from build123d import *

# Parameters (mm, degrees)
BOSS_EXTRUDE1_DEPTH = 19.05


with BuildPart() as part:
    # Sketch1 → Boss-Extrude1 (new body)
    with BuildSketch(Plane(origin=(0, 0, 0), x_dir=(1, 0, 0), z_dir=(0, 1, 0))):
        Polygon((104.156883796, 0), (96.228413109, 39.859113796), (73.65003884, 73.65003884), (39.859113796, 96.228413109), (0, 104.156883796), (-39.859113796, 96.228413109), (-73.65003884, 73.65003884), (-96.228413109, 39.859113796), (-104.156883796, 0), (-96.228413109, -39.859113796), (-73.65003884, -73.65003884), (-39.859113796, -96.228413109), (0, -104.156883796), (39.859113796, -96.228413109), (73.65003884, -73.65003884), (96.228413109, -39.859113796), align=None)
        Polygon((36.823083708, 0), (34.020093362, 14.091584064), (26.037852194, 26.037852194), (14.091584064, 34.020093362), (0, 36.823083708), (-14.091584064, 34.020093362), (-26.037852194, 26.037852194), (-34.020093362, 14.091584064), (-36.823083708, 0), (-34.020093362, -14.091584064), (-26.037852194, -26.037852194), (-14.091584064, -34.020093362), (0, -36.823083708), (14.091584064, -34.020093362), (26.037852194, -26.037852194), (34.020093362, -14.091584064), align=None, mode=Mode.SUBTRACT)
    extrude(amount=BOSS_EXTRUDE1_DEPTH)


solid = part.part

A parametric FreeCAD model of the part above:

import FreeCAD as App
import Part
import Sketcher
Q = App.Units.Quantity

doc = App.newDocument("Part")
params = doc.addObject("Spreadsheet::Sheet", "Params")
for row, (alias, value) in enumerate([
    ("sketch1_length", "1.6 in"),
    ("pad1_length", "0.75 in"),
], start=1):
    params.set(f"A{row}", alias)
    params.set(f"B{row}", "=" + value)
    params.setAlias(f"B{row}", alias)

body = doc.addObject("PartDesign::Body", "Body")

sketch1 = doc.addObject("Sketcher::SketchObject", "Sketch")
body.addObject(sketch1)
sketch1.AttachmentSupport = (doc.XZ_Plane, [""])
sketch1.MapMode = "FlatFace"
sketch1.addGeometry([
    Part.LineSegment(App.Vector(104.156884, 0, 0), App.Vector(96.228413, -39.859114, 0)),
    Part.LineSegment(App.Vector(96.228413, -39.859114, 0), App.Vector(73.650039, -73.650039, 0)),
    Part.LineSegment(App.Vector(73.650039, -73.650039, 0), App.Vector(39.859114, -96.228413, 0)),
    Part.LineSegment(App.Vector(39.859114, -96.228413, 0), App.Vector(0, -104.156884, 0)),
    Part.LineSegment(App.Vector(0, -104.156884, 0), App.Vector(-39.859114, -96.228413, 0)),
    Part.LineSegment(App.Vector(-39.859114, -96.228413, 0), App.Vector(-73.650039, -73.650039, 0)),
    Part.LineSegment(App.Vector(-73.650039, -73.650039, 0), App.Vector(-96.228413, -39.859114, 0)),
    Part.LineSegment(App.Vector(-96.228413, -39.859114, 0), App.Vector(-104.156884, 0, 0)),
    Part.LineSegment(App.Vector(-104.156884, 0, 0), App.Vector(-96.228413, 39.859114, 0)),
    Part.LineSegment(App.Vector(-96.228413, 39.859114, 0), App.Vector(-73.650039, 73.650039, 0)),
    Part.LineSegment(App.Vector(-73.650039, 73.650039, 0), App.Vector(-39.859114, 96.228413, 0)),
    Part.LineSegment(App.Vector(-39.859114, 96.228413, 0), App.Vector(0, 104.156884, 0)),
    Part.LineSegment(App.Vector(0, 104.156884, 0), App.Vector(39.859114, 96.228413, 0)),
    Part.LineSegment(App.Vector(39.859114, 96.228413, 0), App.Vector(73.650039, 73.650039, 0)),
    Part.LineSegment(App.Vector(73.650039, 73.650039, 0), App.Vector(96.228413, 39.859114, 0)),
    Part.LineSegment(App.Vector(96.228413, 39.859114, 0), App.Vector(104.156884, 0, 0)),
    Part.LineSegment(App.Vector(34.020093, -14.091584, 0), App.Vector(36.823084, 0, 0)),
    Part.LineSegment(App.Vector(36.823084, 0, 0), App.Vector(34.020093, 14.091584, 0)),
    Part.LineSegment(App.Vector(34.020093, 14.091584, 0), App.Vector(26.037852, 26.037852, 0)),
    Part.LineSegment(App.Vector(26.037852, 26.037852, 0), App.Vector(14.091584, 34.020093, 0)),
    Part.LineSegment(App.Vector(14.091584, 34.020093, 0), App.Vector(0, 36.823084, 0)),
    Part.LineSegment(App.Vector(0, 36.823084, 0), App.Vector(-14.091584, 34.020093, 0)),
    Part.LineSegment(App.Vector(-14.091584, 34.020093, 0), App.Vector(-26.037852, 26.037852, 0)),
    Part.LineSegment(App.Vector(-26.037852, 26.037852, 0), App.Vector(-34.020093, 14.091584, 0)),
    Part.LineSegment(App.Vector(-34.020093, 14.091584, 0), App.Vector(-36.823084, 0, 0)),
    Part.LineSegment(App.Vector(-36.823084, 0, 0), App.Vector(-34.020093, -14.091584, 0)),
    Part.LineSegment(App.Vector(-34.020093, -14.091584, 0), App.Vector(-26.037852, -26.037852, 0)),
    Part.LineSegment(App.Vector(-26.037852, -26.037852, 0), App.Vector(-14.091584, -34.020093, 0)),
    Part.LineSegment(App.Vector(-14.091584, -34.020093, 0), App.Vector(0, -36.823084, 0)),
    Part.LineSegment(App.Vector(0, -36.823084, 0), App.Vector(14.091584, -34.020093, 0)),
    Part.LineSegment(App.Vector(14.091584, -34.020093, 0), App.Vector(26.037852, -26.037852, 0)),
    Part.LineSegment(App.Vector(26.037852, -26.037852, 0), App.Vector(34.020093, -14.091584, 0)),
], False)
sketch1.addConstraint([
    Sketcher.Constraint("Coincident", 0, 2, 1, 1),
    Sketcher.Constraint("Coincident", 1, 2, 2, 1),
    Sketcher.Constraint("Coincident", 2, 2, 3, 1),
    Sketcher.Constraint("Coincident", 3, 2, 4, 1),
    Sketcher.Constraint("Coincident", 4, 2, 5, 1),
    Sketcher.Constraint("Coincident", 5, 2, 6, 1),
    Sketcher.Constraint("Coincident", 6, 2, 7, 1),
    Sketcher.Constraint("Coincident", 7, 2, 8, 1),
    Sketcher.Constraint("Coincident", 8, 2, 9, 1),
    Sketcher.Constraint("Coincident", 9, 2, 10, 1),
    Sketcher.Constraint("Coincident", 10, 2, 11, 1),
    Sketcher.Constraint("Coincident", 11, 2, 12, 1),
    Sketcher.Constraint("Coincident", 12, 2, 13, 1),
    Sketcher.Constraint("Coincident", 13, 2, 14, 1),
    Sketcher.Constraint("Coincident", 14, 2, 15, 1),
    Sketcher.Constraint("Coincident", 15, 2, 0, 1),
    Sketcher.Constraint("Coincident", 16, 2, 17, 1),
    Sketcher.Constraint("Coincident", 17, 2, 18, 1),
    Sketcher.Constraint("Coincident", 18, 2, 19, 1),
    Sketcher.Constraint("Coincident", 19, 2, 20, 1),
    Sketcher.Constraint("Coincident", 20, 2, 21, 1),
    Sketcher.Constraint("Coincident", 21, 2, 22, 1),
    Sketcher.Constraint("Coincident", 22, 2, 23, 1),
    Sketcher.Constraint("Coincident", 23, 2, 24, 1),
    Sketcher.Constraint("Coincident", 24, 2, 25, 1),
    Sketcher.Constraint("Coincident", 25, 2, 26, 1),
    Sketcher.Constraint("Coincident", 26, 2, 27, 1),
    Sketcher.Constraint("Coincident", 27, 2, 28, 1),
    Sketcher.Constraint("Coincident", 28, 2, 29, 1),
    Sketcher.Constraint("Coincident", 29, 2, 30, 1),
    Sketcher.Constraint("Coincident", 30, 2, 31, 1),
    Sketcher.Constraint("Coincident", 31, 2, 16, 1),
    Sketcher.Constraint("Symmetric", 0, 2, 8, 2, -1, 1),
    Sketcher.Constraint("Symmetric", 1, 2, 9, 2, -1, 1),
    Sketcher.Constraint("Symmetric", 2, 2, 10, 2, -1, 1),
    Sketcher.Constraint("Symmetric", 3, 2, 11, 2, -1, 1),
    Sketcher.Constraint("Symmetric", 4, 2, 12, 2, -1, 1),
    Sketcher.Constraint("Symmetric", 5, 2, 13, 2, -1, 1),
    Sketcher.Constraint("Symmetric", 6, 2, 14, 2, -1, 1),
    Sketcher.Constraint("Symmetric", 7, 2, 15, 2, -1, 1),
    Sketcher.Constraint("Symmetric", 16, 2, 24, 2, -1, 1),
    Sketcher.Constraint("Symmetric", 17, 2, 25, 2, -1, 1),
    Sketcher.Constraint("Symmetric", 18, 2, 26, 2, -1, 1),
    Sketcher.Constraint("Symmetric", 19, 2, 27, 2, -1, 1),
    Sketcher.Constraint("Symmetric", 20, 2, 28, 2, -1, 1),
    Sketcher.Constraint("Symmetric", 21, 2, 29, 2, -1, 1),
    Sketcher.Constraint("Symmetric", 22, 2, 30, 2, -1, 1),
    Sketcher.Constraint("Symmetric", 23, 2, 31, 2, -1, 1),
    Sketcher.Constraint("Symmetric", 2, 2, 4, 2, -2),
    Sketcher.Constraint("Symmetric", 1, 2, 5, 2, -2),
    Sketcher.Constraint("Symmetric", 0, 2, 6, 2, -2),
    Sketcher.Constraint("Symmetric", 19, 2, 21, 2, -2),
    Sketcher.Constraint("Symmetric", 18, 2, 22, 2, -2),
    Sketcher.Constraint("Symmetric", 17, 2, 23, 2, -2),
    Sketcher.Constraint("PointOnObject", 3, 2, -2),
    Sketcher.Constraint("PointOnObject", 7, 2, -1),
    Sketcher.Constraint("PointOnObject", 16, 2, -1),
    Sketcher.Constraint("PointOnObject", 20, 2, -2),
    Sketcher.Constraint("Perpendicular", 0, 4),
    Sketcher.Constraint("Perpendicular", 1, 5),
    Sketcher.Constraint("Perpendicular", 12, 16),
    Sketcher.Constraint("Parallel", 14, 18),
    Sketcher.Constraint("Parallel", 13, 19),
    Sketcher.Constraint("Perpendicular", 16, 20),
    Sketcher.Constraint("Equal", 0, 1),
    Sketcher.Constraint("Equal", 1, 2),
    Sketcher.Constraint("Equal", 2, 3),
    Sketcher.Constraint("Equal", 17, 18),
    Sketcher.Constraint("Equal", 18, 19),
    Sketcher.Constraint("Equal", 19, 20),
    Sketcher.Constraint("Distance", 0, Q("1.6 in")),
    Sketcher.Constraint("Angle", 0, Q("-101.25 deg")),
    Sketcher.Constraint("Angle", 1, Q("-123.75 deg")),
    Sketcher.Constraint("DistanceX", 16, 2, 15, 2, Q("67.3338 mm")),
])
sketch1.setExpression("Constraints[70]", "Params.sketch1_length")
pad1 = doc.addObject("PartDesign::Pad", "Pad")
body.addObject(pad1)
pad1.Profile = sketch1
pad1.setExpression("Length", "Params.pad1_length")
pad1.Reversed = True

doc.recompute()
